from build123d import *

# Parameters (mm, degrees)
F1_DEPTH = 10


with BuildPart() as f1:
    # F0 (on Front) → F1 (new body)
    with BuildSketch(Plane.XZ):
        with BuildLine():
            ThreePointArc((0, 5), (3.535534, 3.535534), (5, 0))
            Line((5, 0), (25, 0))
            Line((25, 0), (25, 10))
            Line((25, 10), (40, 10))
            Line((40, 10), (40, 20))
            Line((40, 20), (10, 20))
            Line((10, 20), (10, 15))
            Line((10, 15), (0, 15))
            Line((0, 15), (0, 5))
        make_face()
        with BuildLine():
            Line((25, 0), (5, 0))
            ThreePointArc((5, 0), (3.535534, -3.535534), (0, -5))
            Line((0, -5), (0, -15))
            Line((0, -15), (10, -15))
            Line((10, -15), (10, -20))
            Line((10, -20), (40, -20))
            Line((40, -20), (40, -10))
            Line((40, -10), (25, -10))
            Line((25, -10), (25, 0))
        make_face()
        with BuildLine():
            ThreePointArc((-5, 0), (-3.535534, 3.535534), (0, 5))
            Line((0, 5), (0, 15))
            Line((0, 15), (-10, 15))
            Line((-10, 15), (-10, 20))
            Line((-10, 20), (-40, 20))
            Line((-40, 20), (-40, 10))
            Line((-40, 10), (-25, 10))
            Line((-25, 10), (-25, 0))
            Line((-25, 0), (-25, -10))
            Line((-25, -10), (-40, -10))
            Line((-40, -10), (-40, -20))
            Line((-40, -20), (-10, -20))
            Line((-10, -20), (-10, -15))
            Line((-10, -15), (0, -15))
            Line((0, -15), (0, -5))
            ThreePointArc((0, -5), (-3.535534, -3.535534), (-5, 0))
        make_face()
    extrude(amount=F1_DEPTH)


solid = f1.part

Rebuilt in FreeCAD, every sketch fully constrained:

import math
import FreeCAD as App
import Part
import Sketcher

V = App.Vector

doc = App.newDocument("Part")
body = doc.addObject("PartDesign::Body", "Body")

sketch1 = doc.addObject("Sketcher::SketchObject", "Sketch")
body.addObject(sketch1)
sketch1.AttachmentSupport = (doc.XZ_Plane, [""])
sketch1.MapMode = "FlatFace"
sketch1.addGeometry([
    Part.LineSegment(V(10, -15, 0), V(10, -20, 0)),
    Part.LineSegment(V(10, -20, 0), V(40, -20, 0)),
    Part.LineSegment(V(40, -20, 0), V(40, -10, 0)),
    Part.LineSegment(V(40, -10, 0), V(25, -10, 0)),
    Part.LineSegment(V(25, -10, 0), V(25, 10, 0)),
    Part.LineSegment(V(25, 10, 0), V(40, 10, 0)),
    Part.LineSegment(V(40, 10, 0), V(40, 20, 0)),
    Part.LineSegment(V(40, 20, 0), V(10, 20, 0)),
    Part.LineSegment(V(10, 20, 0), V(10, 15, 0)),
    Part.LineSegment(V(10, 15, 0), V(-10, 15, 0)),
    Part.LineSegment(V(-10, 15, 0), V(-10, 20, 0)),
    Part.LineSegment(V(-10, 20, 0), V(-40, 20, 0)),
    Part.LineSegment(V(-40, 20, 0), V(-40, 10, 0)),
    Part.LineSegment(V(-40, 10, 0), V(-25, 10, 0)),
    Part.LineSegment(V(-25, 10, 0), V(-25, -10, 0)),
    Part.LineSegment(V(-25, -10, 0), V(-40, -10, 0)),
    Part.LineSegment(V(-40, -10, 0), V(-40, -20, 0)),
    Part.LineSegment(V(-40, -20, 0), V(-10, -20, 0)),
    Part.LineSegment(V(-10, -20, 0), V(-10, -15, 0)),
    Part.LineSegment(V(-10, -15, 0), V(10, -15, 0)),
    Part.ArcOfCircle(Part.Circle(V(0, 0, 0), V(0, 0, 1), 5), math.radians(0), math.radians(90)),
    Part.ArcOfCircle(Part.Circle(V(0, 0, 0), V(0, 0, 1), 5), math.radians(-90), math.radians(0)),
    Part.ArcOfCircle(Part.Circle(V(0, 0, 0), V(0, 0, 1), 5), math.radians(180), math.radians(270)),
    Part.ArcOfCircle(Part.Circle(V(0, 0, 0), V(0, 0, 1), 5), math.radians(90), math.radians(180)),
], False)
sketch1.addConstraint([
    Sketcher.Constraint("Coincident", 0, 2, 1, 1),
    Sketcher.Constraint("Coincident", 1, 2, 2, 1),
    Sketcher.Constraint("Coincident", 2, 2, 3, 1),
    Sketcher.Constraint("Coincident", 3, 2, 4, 1),
    Sketcher.Constraint("Coincident", 4, 2, 5, 1),
    Sketcher.Constraint("Coincident", 5, 2, 6, 1),
    Sketcher.Constraint("Coincident", 6, 2, 7, 1),
    Sketcher.Constraint("Coincident", 7, 2, 8, 1),
    Sketcher.Constraint("Coincident", 8, 2, 9, 1),
    Sketcher.Constraint("Coincident", 9, 2, 10, 1),
    Sketcher.Constraint("Coincident", 10, 2, 11, 1),
    Sketcher.Constraint("Coincident", 11, 2, 12, 1),
    Sketcher.Constraint("Coincident", 12, 2, 13, 1),
    Sketcher.Constraint("Coincident", 13, 2, 14, 1),
    Sketcher.Constraint("Coincident", 14, 2, 15, 1),
    Sketcher.Constraint("Coincident", 15, 2, 16, 1),
    Sketcher.Constraint("Coincident", 16, 2, 17, 1),
    Sketcher.Constraint("Coincident", 17, 2, 18, 1),
    Sketcher.Constraint("Coincident", 18, 2, 19, 1),
    Sketcher.Constraint("Coincident", 19, 2, 0, 1),
    Sketcher.Constraint("Tangent", 20, 1, 21, 2),
    Sketcher.Constraint("Tangent", 21, 1, 22, 2),
    Sketcher.Constraint("Tangent", 22, 1, 23, 2),
    Sketcher.Constraint("Tangent", 23, 1, 20, 2),
    Sketcher.Constraint("Vertical", 0),
    Sketcher.Constraint("Horizontal", 1),
    Sketcher.Constraint("Vertical", 2),
    Sketcher.Constraint("Horizontal", 3),
    Sketcher.Constraint("Vertical", 4),
    Sketcher.Constraint("Horizontal", 5),
    Sketcher.Constraint("Vertical", 6),
    Sketcher.Constraint("Horizontal", 7),
    Sketcher.Constraint("Vertical", 8),
    Sketcher.Constraint("Horizontal", 9),
    Sketcher.Constraint("Vertical", 10),
    Sketcher.Constraint("Horizontal", 11),
    Sketcher.Constraint("Vertical", 12),
    Sketcher.Constraint("Horizontal", 13),
    Sketcher.Constraint("Vertical", 14),
    Sketcher.Constraint("Horizontal", 15),
    Sketcher.Constraint("Vertical", 16),
    Sketcher.Constraint("Horizontal", 17),
    Sketcher.Constraint("Vertical", 18),
    Sketcher.Constraint("Horizontal", 19),
    Sketcher.Constraint("Coincident", 20, 3, -1, 1),
    Sketcher.Constraint("Equal", 20, 21),
    Sketcher.Constraint("Symmetric", 0, 2, 10, 2, -1, 1),
    Sketcher.Constraint("Symmetric", 2, 2, 12, 2, -1, 1),
    Sketcher.Constraint("Symmetric", 4, 2, 14, 2, -1, 1),
    Sketcher.Constraint("Symmetric", 6, 2, 16, 2, -1, 1),
    Sketcher.Constraint("Symmetric", 8, 2, 18, 2, -1, 1),
    Sketcher.Constraint("Symmetric", 7, 2, 10, 2, -2),
    Sketcher.Constraint("Symmetric", 5, 2, 12, 2, -2),
    Sketcher.Constraint("PointOnObject", 20, 1, -1),
    Sketcher.Constraint("PointOnObject", 21, 1, -2),
    Sketcher.Constraint("PointOnObject", 22, 1, -1),
    Sketcher.Constraint("PointOnObject", 23, 1, -2),
    Sketcher.Constraint("Equal", 19, 4),
    Sketcher.Constraint("Radius", 20, 5.0),
    Sketcher.Constraint("DistanceX", 1, 1, 1, 2, 30.0),
    Sketcher.Constraint("DistanceX", 3, 2, 3, 1, 15.0),
    Sketcher.Constraint("DistanceX", 9, 2, 9, 1, 20.0),
    Sketcher.Constraint("DistanceY", 0, 2, 0, 1, 5.0),
    Sketcher.Constraint("DistanceY", 2, 1, 2, 2, 10.0),
])
pad1 = doc.addObject("PartDesign::Pad", "Pad")
body.addObject(pad1)
pad1.Profile = sketch1
pad1.Length = 10

doc.recompute()
